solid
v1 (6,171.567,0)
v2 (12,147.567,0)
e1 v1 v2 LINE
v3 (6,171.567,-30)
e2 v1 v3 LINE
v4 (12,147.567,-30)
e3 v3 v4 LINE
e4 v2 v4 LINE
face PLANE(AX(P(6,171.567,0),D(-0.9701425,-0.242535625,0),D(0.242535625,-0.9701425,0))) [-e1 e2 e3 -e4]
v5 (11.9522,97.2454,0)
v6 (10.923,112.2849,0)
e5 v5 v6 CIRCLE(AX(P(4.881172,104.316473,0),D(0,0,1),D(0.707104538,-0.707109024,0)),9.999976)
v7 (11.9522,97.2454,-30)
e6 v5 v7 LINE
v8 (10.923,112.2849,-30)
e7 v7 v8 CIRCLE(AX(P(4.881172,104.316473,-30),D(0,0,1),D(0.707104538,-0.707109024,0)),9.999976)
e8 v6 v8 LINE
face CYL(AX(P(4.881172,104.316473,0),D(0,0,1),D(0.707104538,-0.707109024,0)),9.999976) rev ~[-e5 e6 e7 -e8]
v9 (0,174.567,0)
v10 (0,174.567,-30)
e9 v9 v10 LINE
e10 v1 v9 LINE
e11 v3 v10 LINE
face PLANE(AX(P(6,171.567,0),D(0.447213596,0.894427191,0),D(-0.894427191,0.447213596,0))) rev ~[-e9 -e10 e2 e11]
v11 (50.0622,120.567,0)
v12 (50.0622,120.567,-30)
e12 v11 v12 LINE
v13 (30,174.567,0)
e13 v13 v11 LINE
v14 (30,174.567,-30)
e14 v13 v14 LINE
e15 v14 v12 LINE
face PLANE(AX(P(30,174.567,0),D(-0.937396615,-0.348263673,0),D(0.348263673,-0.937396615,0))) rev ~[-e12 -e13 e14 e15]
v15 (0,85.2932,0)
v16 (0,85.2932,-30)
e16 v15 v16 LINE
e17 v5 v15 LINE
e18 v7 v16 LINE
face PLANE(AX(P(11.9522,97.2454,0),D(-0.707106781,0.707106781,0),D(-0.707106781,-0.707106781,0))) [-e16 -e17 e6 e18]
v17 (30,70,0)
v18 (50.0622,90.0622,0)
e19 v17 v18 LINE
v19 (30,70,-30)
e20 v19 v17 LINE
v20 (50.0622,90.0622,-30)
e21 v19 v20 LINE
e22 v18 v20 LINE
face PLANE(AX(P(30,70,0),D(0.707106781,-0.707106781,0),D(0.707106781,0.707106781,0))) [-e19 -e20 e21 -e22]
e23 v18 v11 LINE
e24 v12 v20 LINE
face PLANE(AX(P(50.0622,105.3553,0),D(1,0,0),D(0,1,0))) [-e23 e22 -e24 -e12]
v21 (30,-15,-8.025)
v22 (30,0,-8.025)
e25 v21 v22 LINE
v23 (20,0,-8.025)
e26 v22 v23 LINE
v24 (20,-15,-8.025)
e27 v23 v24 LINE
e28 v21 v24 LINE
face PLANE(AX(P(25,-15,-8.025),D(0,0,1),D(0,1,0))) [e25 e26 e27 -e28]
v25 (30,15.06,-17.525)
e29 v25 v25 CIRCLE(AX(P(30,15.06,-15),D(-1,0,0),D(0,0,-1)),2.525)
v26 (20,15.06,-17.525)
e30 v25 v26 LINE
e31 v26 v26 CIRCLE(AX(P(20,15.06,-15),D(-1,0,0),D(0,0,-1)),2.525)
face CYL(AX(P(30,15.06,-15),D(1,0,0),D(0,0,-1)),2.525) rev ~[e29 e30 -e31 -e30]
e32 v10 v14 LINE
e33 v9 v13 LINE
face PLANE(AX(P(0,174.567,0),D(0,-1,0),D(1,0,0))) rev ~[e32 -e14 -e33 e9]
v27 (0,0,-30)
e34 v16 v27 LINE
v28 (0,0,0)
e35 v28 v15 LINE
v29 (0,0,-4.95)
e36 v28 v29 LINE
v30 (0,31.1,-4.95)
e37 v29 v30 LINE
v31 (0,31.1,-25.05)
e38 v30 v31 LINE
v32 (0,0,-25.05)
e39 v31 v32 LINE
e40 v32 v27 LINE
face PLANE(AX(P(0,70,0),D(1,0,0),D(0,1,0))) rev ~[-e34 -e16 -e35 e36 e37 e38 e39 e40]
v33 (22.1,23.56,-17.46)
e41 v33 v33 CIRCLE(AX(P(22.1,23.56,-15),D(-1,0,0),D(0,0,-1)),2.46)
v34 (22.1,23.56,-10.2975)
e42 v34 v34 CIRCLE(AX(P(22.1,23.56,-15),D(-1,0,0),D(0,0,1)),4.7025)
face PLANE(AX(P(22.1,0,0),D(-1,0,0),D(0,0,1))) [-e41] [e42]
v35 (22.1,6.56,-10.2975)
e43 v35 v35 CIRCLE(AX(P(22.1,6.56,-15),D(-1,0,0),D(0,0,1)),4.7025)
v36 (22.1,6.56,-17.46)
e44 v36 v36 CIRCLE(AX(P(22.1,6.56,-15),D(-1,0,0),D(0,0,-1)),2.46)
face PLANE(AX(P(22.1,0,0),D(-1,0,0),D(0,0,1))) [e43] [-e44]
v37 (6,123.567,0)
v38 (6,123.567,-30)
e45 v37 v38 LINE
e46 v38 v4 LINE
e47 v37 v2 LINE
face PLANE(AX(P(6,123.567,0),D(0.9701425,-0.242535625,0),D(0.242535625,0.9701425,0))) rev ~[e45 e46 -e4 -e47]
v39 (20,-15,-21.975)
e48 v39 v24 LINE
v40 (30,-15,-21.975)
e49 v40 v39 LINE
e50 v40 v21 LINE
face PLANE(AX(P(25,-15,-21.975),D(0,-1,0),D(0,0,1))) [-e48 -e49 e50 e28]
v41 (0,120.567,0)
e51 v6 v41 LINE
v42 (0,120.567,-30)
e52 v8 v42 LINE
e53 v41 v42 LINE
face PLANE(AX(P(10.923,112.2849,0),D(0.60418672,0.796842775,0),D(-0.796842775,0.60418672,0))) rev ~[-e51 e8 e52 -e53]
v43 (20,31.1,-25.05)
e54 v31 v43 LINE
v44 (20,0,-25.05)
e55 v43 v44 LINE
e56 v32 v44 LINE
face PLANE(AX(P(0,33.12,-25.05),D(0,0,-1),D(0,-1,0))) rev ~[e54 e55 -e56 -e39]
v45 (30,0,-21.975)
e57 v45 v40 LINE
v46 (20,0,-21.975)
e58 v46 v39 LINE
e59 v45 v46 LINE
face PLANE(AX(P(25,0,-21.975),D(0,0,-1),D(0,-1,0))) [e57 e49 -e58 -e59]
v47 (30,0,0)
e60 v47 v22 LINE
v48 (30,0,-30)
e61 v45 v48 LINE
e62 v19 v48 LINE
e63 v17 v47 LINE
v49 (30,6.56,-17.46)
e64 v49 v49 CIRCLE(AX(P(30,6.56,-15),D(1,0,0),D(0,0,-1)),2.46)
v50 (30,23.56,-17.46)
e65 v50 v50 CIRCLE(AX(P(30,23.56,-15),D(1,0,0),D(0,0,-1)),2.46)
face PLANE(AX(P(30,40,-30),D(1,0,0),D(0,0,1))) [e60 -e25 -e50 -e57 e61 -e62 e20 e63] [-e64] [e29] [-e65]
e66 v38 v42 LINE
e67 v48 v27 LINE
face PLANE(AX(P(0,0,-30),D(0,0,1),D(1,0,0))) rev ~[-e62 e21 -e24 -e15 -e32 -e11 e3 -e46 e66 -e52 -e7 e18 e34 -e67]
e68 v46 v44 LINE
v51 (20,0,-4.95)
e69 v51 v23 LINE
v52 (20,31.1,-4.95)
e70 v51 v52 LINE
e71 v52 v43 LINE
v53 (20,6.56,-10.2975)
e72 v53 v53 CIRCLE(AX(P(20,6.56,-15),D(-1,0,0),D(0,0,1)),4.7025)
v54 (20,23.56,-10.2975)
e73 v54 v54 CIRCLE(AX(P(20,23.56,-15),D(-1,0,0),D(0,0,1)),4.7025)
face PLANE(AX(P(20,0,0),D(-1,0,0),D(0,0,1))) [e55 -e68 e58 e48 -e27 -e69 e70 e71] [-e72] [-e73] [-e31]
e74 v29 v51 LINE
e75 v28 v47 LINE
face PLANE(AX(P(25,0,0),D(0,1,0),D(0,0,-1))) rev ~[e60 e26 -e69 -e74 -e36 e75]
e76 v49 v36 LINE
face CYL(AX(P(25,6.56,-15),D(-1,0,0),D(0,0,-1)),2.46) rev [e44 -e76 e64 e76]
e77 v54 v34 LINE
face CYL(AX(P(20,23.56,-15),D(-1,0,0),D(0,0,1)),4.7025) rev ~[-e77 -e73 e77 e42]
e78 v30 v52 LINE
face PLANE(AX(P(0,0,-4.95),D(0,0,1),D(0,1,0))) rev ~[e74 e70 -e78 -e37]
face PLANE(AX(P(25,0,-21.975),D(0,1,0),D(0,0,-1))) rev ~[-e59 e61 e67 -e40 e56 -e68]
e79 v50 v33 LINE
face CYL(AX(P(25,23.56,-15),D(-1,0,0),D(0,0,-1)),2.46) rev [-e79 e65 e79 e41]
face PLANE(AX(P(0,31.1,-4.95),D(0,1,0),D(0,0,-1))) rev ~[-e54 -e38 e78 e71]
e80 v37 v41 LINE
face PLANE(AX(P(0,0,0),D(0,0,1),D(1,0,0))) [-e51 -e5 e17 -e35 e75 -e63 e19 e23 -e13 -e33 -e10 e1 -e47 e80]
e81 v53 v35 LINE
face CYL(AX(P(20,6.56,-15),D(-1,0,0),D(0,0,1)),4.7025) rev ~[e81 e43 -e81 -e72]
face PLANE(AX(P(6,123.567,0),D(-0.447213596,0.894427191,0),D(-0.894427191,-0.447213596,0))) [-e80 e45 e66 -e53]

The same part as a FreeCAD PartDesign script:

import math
import FreeCAD as App
import Part
import Sketcher

V = App.Vector
Q = App.Units.Quantity


def add_polygon(sketch, points):
    """Adds a closed chain of lines whose ends are joined by coincident constraints."""
    first, n = sketch.GeometryCount, len(points)
    for a, b in zip(points, points[1:] + points[:1]):
        sketch.addGeometry(Part.LineSegment(App.Vector(*a, 0), App.Vector(*b, 0)), False)
    for i in range(n):
        sketch.addConstraint(Sketcher.Constraint("Coincident", first + i, 2, first + (i + 1) % n, 1))

doc = App.newDocument("Part")
params = doc.addObject("Spreadsheet::Sheet", "Params")
for row, (alias, value) in enumerate([
    ("sketch1_width", "25 mm"),
    ("sketch1_height", "40 mm"),
    ("pad1_length", "30 mm"),
    ("sketch2_diameter", "4.92 mm"),
    ("pocket1_length", "30 mm"),
    ("sketch3_height", "20.1 mm"),
    ("sketch3_width", "33.12 mm"),
    ("pocket2_length", "20 mm"),
    ("sketch4_height", "13.95 mm"),
    ("sketch4_width", "5 mm"),
    ("pad2_length", "15 mm"),
    ("sketch5_diameter", "4.92 mm"),
    ("pocket3_length", "2.1 mm"),
    ("sketch6_diameter", "4.92 mm"),
    ("pocket4_length", "10 mm"),
    ("sketch7_diameter", "4.92 mm"),
    ("pocket5_length", "2.1 mm"),
    ("sketch8_diameter", "4.92 mm"),
    ("sketch8_width", "40 mm"),
    ("sketch8_width2", "15 mm"),
    ("sketch8_height", "30 mm"),
    ("sketch8_height2", "13.95 mm"),
    ("pad3_length", "5 mm"),
    ("sketch9_width", "30 mm"),
    ("pad4_length", "30 mm"),
    ("sketch10_diameter", "5.05 mm"),
    ("pocket6_length", "30 mm"),
    ("sketch11_width", "2.02 mm"),
    ("sketch11_height", "20.1 mm"),
    ("pad5_length", "20 mm"),
    ("sketch12_radius", "10 mm"),
    ("sketch12_width", "30 mm"),
    ("pad6_length", "30 mm"),
], start=1):
    params.set(f"A{row}", alias)
    params.set(f"B{row}", "=" + value)
    params.setAlias(f"B{row}", alias)

body = doc.addObject("PartDesign::Body", "Body")

# Sketch on XY plane
sketch1 = doc.addObject("Sketcher::SketchObject", "Sketch")
body.addObject(sketch1)
sketch1.AttachmentSupport = (doc.XY_Plane, [""])
sketch1.MapMode = "FlatFace"
add_polygon(sketch1, [(0, 40), (0, 0), (25, 0), (25, 40)])  # lines 0-3
sketch1.addConstraint(Sketcher.Constraint("Vertical", 0))
sketch1.addConstraint(Sketcher.Constraint("Horizontal", 1))
sketch1.addConstraint(Sketcher.Constraint("Vertical", 2))
sketch1.addConstraint(Sketcher.Constraint("Horizontal", 3))
sketch1.addConstraint(Sketcher.Constraint("Coincident", 0, 2, -1, 1))
sketch1.addConstraint(Sketcher.Constraint("DistanceX", 1, 1, 1, 2, 25.0))
sketch1.addConstraint(Sketcher.Constraint("DistanceY", 0, 2, 0, 1, 40.0))
sketch1.setExpression("Constraints[9]", "Params.sketch1_width")
sketch1.setExpression("Constraints[10]", "Params.sketch1_height")
pad1 = doc.addObject("PartDesign::Pad", "Pad")
body.addObject(pad1)
pad1.Profile = sketch1
pad1.setExpression("Length", "Params.pad1_length")
pad1.Reversed = True

# Sketch on YZ plane
sketch2 = doc.addObject("Sketcher::SketchObject", "Sketch001")
body.addObject(sketch2)
sketch2.AttachmentSupport = (doc.YZ_Plane, [""])
sketch2.MapMode = "FlatFace"
sketch2.AttachmentOffset = App.Placement(V(0, 0, 25), App.Rotation())
sketch2.addGeometry(Part.Circle(V(6.6, -15, 0), V(0, 0, 1), 2.5), False)
sketch2.addConstraint(Sketcher.Constraint("Diameter", 0, 4.92))
sketch2.addConstraint(Sketcher.Constraint("DistanceY", 0, 3, -1, 1, 15.0))
sketch2.addConstraint(Sketcher.Constraint("DistanceX", -1, 1, 0, 3, 6.56))
sketch2.setExpression("Constraints[0]", "Params.sketch2_diameter")
pocket1 = doc.addObject("PartDesign::Pocket", "Pocket")
body.addObject(pocket1)
pocket1.Profile = sketch2
pocket1.setExpression("Length", "Params.pocket1_length")

# Sketch on YZ plane
sketch3 = doc.addObject("Sketcher::SketchObject", "Sketch002")
body.addObject(sketch3)
sketch3.AttachmentSupport = (doc.YZ_Plane, [""])
sketch3.MapMode = "FlatFace"
add_polygon(sketch3, [(0, -25), (0, -5), (33, -5), (33, -25)])  # lines 0-3
sketch3.addConstraint(Sketcher.Constraint("Vertical", 0))
sketch3.addConstraint(Sketcher.Constraint("Horizontal", 1))
sketch3.addConstraint(Sketcher.Constraint("Vertical", 2))
sketch3.addConstraint(Sketcher.Constraint("Horizontal", 3))
sketch3.addConstraint(Sketcher.Constraint("PointOnObject", 0, 2, -2))
sketch3.addConstraint(Sketcher.Constraint("DistanceY", 0, 1, 0, 2, 20.1))
sketch3.addConstraint(Sketcher.Constraint("DistanceX", 1, 1, 1, 2, 33.12))
sketch3.addConstraint(Sketcher.Constraint("DistanceY", 0, 2, -1, 1, 4.95))
sketch3.setExpression("Constraints[9]", "Params.sketch3_height")
sketch3.setExpression("Constraints[10]", "Params.sketch3_width")
pocket2 = doc.addObject("PartDesign::Pocket", "Pocket001")
body.addObject(pocket2)
pocket2.Profile = sketch3
pocket2.setExpression("Length", "Params.pocket2_length")
pocket2.Reversed = True

# Sketch on XZ plane
sketch4 = doc.addObject("Sketcher::SketchObject", "Sketch003")
body.addObject(sketch4)
sketch4.AttachmentSupport = (doc.XZ_Plane, [""])
sketch4.MapMode = "FlatFace"
add_polygon(sketch4, [(25, -8), (20, -8), (20, -22), (25, -22)])  # lines 0-3
sketch4.addConstraint(Sketcher.Constraint("Horizontal", 0))
sketch4.addConstraint(Sketcher.Constraint("Vertical", 1))
sketch4.addConstraint(Sketcher.Constraint("Horizontal", 2))
sketch4.addConstraint(Sketcher.Constraint("Vertical", 3))
sketch4.addConstraint(Sketcher.Constraint("DistanceY", 1, 2, 1, 1, 13.95))
sketch4.addConstraint(Sketcher.Constraint("DistanceX", 0, 2, 0, 1, 5.0))
sketch4.addConstraint(Sketcher.Constraint("DistanceX", -1, 1, 0, 2, 20.0))
sketch4.addConstraint(Sketcher.Constraint("DistanceY", 0, 2, -1, 1, 8.025))
sketch4.setExpression("Constraints[8]", "Params.sketch4_height")
sketch4.setExpression("Constraints[9]", "Params.sketch4_width")
pad2 = doc.addObject("PartDesign::Pad", "Pad001")
body.addObject(pad2)
pad2.Profile = sketch4
pad2.setExpression("Length", "Params.pad2_length")

# Sketch on YZ plane
sketch5 = doc.addObject("Sketcher::SketchObject", "Sketch004")
body.addObject(sketch5)
sketch5.AttachmentSupport = (doc.YZ_Plane, [""])
sketch5.MapMode = "FlatFace"
sketch5.AttachmentOffset = App.Placement(V(0, 0, 20), App.Rotation())
sketch5.addGeometry(Part.Circle(V(6.6, -15, 0), V(0, 0, 1), 4.7), False)
sketch5.addGeometry(Part.Circle(V(6.6, -15, 0), V(0, 0, 1), 2.5), False)
sketch5.addConstraint(Sketcher.Constraint("Coincident", 1, 3, 0, 3))
sketch5.addConstraint(Sketcher.Constraint("Diameter", 0, 9.405))
sketch5.addConstraint(Sketcher.Constraint("Diameter", 1, 4.92))
sketch5.addConstraint(Sketcher.Constraint("DistanceY", 0, 3, -1, 1, 15.0))
sketch5.addConstraint(Sketcher.Constraint("DistanceX", -1, 1, 0, 3, 6.56))
sketch5.setExpression("Constraints[2]", "Params.sketch5_diameter")
pocket3 = doc.addObject("PartDesign::Pocket", "Pocket002")
body.addObject(pocket3)
pocket3.Profile = sketch5
pocket3.setExpression("Length", "Params.pocket3_length")
pocket3.Reversed = True

# Sketch on YZ plane
sketch6 = doc.addObject("Sketcher::SketchObject", "Sketch005")
body.addObject(sketch6)
sketch6.AttachmentSupport = (doc.YZ_Plane, [""])
sketch6.MapMode = "FlatFace"
sketch6.AttachmentOffset = App.Placement(V(0, 0, 25), App.Rotation())
sketch6.addGeometry(Part.Circle(V(23.6, -15, 0), V(0, 0, 1), 2.5), False)
sketch6.addConstraint(Sketcher.Constraint("Diameter", 0, 4.92))
sketch6.addConstraint(Sketcher.Constraint("DistanceY", 0, 3, -1, 1, 15.0))
sketch6.addConstraint(Sketcher.Constraint("DistanceX", -1, 1, 0, 3, 23.56))
sketch6.setExpression("Constraints[0]", "Params.sketch6_diameter")
pocket4 = doc.addObject("PartDesign::Pocket", "Pocket003")
body.addObject(pocket4)
pocket4.Profile = sketch6
pocket4.setExpression("Length", "Params.pocket4_length")

# Sketch on YZ plane
sketch7 = doc.addObject("Sketcher::SketchObject", "Sketch006")
body.addObject(sketch7)
sketch7.AttachmentSupport = (doc.YZ_Plane, [""])
sketch7.MapMode = "FlatFace"
sketch7.AttachmentOffset = App.Placement(V(0, 0, 20), App.Rotation())
sketch7.addGeometry(Part.Circle(V(23.6, -15, 0), V(0, 0, 1), 4.7), False)
sketch7.addGeometry(Part.Circle(V(23.6, -15, 0), V(0, 0, 1), 2.5), False)
sketch7.addConstraint(Sketcher.Constraint("Coincident", 1, 3, 0, 3))
sketch7.addConstraint(Sketcher.Constraint("Diameter", 0, 9.405))
sketch7.addConstraint(Sketcher.Constraint("Diameter", 1, 4.92))
sketch7.addConstraint(Sketcher.Constraint("DistanceY", 0, 3, -1, 1, 15.0))
sketch7.addConstraint(Sketcher.Constraint("DistanceX", -1, 1, 0, 3, 23.56))
sketch7.setExpression("Constraints[2]", "Params.sketch7_diameter")
pocket5 = doc.addObject("PartDesign::Pocket", "Pocket004")
body.addObject(pocket5)
pocket5.Profile = sketch7
pocket5.setExpression("Length", "Params.pocket5_length")
pocket5.Reversed = True

# Sketch on YZ plane
sketch8 = doc.addObject("Sketcher::SketchObject", "Sketch007")
body.addObject(sketch8)
sketch8.AttachmentSupport = (doc.YZ_Plane, [""])
sketch8.MapMode = "FlatFace"
sketch8.AttachmentOffset = App.Placement(V(0, 0, 25), App.Rotation())
add_polygon(sketch8, [(0, -30), (40, -30), (40, 0), (0, 0), (0, -8), (-15, -8), (-15, -22), (0, -22)])  # lines 0-7
sketch8.addGeometry(Part.Circle(V(6.6, -15, 0), V(0, 0, 1), 2.5), False)  # 8
sketch8.addGeometry(Part.Circle(V(23.6, -15, 0), V(0, 0, 1), 2.5), False)  # 9
sketch8.addConstraint(Sketcher.Constraint("Horizontal", 0))
sketch8.addConstraint(Sketcher.Constraint("Vertical", 1))
sketch8.addConstraint(Sketcher.Constraint("Horizontal", 2))
sketch8.addConstraint(Sketcher.Constraint("Vertical", 3))
sketch8.addConstraint(Sketcher.Constraint("Horizontal", 4))
sketch8.addConstraint(Sketcher.Constraint("Vertical", 5))
sketch8.addConstraint(Sketcher.Constraint("Horizontal", 6))
sketch8.addConstraint(Sketcher.Constraint("Vertical", 7))
sketch8.addConstraint(Sketcher.Constraint("Coincident", 2, 2, -1, 1))
sketch8.addConstraint(Sketcher.Constraint("Equal", 8, 9))
sketch8.addConstraint(Sketcher.Constraint("PointOnObject", 6, 2, -2))
sketch8.addConstraint(Sketcher.Constraint("Horizontal", 8, 3, 9, 3))
sketch8.addConstraint(Sketcher.Constraint("Equal", 3, 7))
sketch8.addConstraint(Sketcher.Constraint("Diameter", 8, 4.92))
sketch8.addConstraint(Sketcher.Constraint("DistanceX", 0, 1, 0, 2, 40.0))
sketch8.addConstraint(Sketcher.Constraint("DistanceX", 4, 2, 4, 1, 15.0))
sketch8.addConstraint(Sketcher.Constraint("DistanceY", 1, 1, 1, 2, 30.0))
sketch8.addConstraint(Sketcher.Constraint("DistanceY", 8, 3, -1, 1, 15.0))
sketch8.addConstraint(Sketcher.Constraint("DistanceX", 8, 3, 9, 3, 17.0))
sketch8.addConstraint(Sketcher.Constraint("DistanceY", 5, 2, 5, 1, 13.95))
sketch8.addConstraint(Sketcher.Constraint("DistanceX", -1, 1, 8, 3, 6.56))
sketch8.setExpression("Constraints[21]", "Params.sketch8_diameter")
sketch8.setExpression("Constraints[22]", "Params.sketch8_width")
sketch8.setExpression("Constraints[23]", "Params.sketch8_width2")
sketch8.setExpression("Constraints[24]", "Params.sketch8_height")
sketch8.setExpression("Constraints[27]", "Params.sketch8_height2")
pad3 = doc.addObject("PartDesign::Pad", "Pad002")
body.addObject(pad3)
pad3.Profile = sketch8
pad3.setExpression("Length", "Params.pad3_length")

# Sketch on XZ plane
sketch9 = doc.addObject("Sketcher::SketchObject", "Sketch008")
body.addObject(sketch9)
sketch9.AttachmentSupport = (doc.XZ_Plane, [""])
sketch9.MapMode = "FlatFace"
sketch9.AttachmentOffset = App.Placement(V(0, 0, -40), App.Rotation())
add_polygon(sketch9, [(30, -30), (0, -30), (0, 0), (30, 0)])  # lines 0-3
sketch9.addConstraint(Sketcher.Constraint("Horizontal", 0))
sketch9.addConstraint(Sketcher.Constraint("Vertical", 1))
sketch9.addConstraint(Sketcher.Constraint("Horizontal", 2))
sketch9.addConstraint(Sketcher.Constraint("Vertical", 3))
sketch9.addConstraint(Sketcher.Constraint("Coincident", 1, 2, -1, 1))
sketch9.addConstraint(Sketcher.Constraint("Equal", 2, 1))
sketch9.addConstraint(Sketcher.Constraint("DistanceX", 0, 2, 0, 1, 30.0))
sketch9.setExpression("Constraints[10]", "Params.sketch9_width")
pad4 = doc.addObject("PartDesign::Pad", "Pad003")
body.addObject(pad4)
pad4.Profile = sketch9
pad4.setExpression("Length", "Params.pad4_length")
pad4.Reversed = True

# Sketch on YZ plane
sketch10 = doc.addObject("Sketcher::SketchObject", "Sketch009")
body.addObject(sketch10)
sketch10.AttachmentSupport = (doc.YZ_Plane, [""])
sketch10.MapMode = "FlatFace"
sketch10.AttachmentOffset = App.Placement(V(0, 0, 30), App.Rotation())
sketch10.addGeometry(Part.Circle(V(15.1, -15, 0), V(0, 0, 1), 2.5), False)
sketch10.addConstraint(Sketcher.Constraint("Diameter", 0, 5.05))
sketch10.addConstraint(Sketcher.Constraint("DistanceY", 0, 3, -1, 1, 15.0))
sketch10.addConstraint(Sketcher.Constraint("DistanceX", -1, 1, 0, 3, 15.06))
sketch10.setExpression("Constraints[0]", "Params.sketch10_diameter")
pocket6 = doc.addObject("PartDesign::Pocket", "Pocket005")
body.addObject(pocket6)
pocket6.Profile = sketch10
pocket6.setExpression("Length", "Params.pocket6_length")

# Sketch on YZ plane
sketch11 = doc.addObject("Sketcher::SketchObject", "Sketch010")
body.addObject(sketch11)
sketch11.AttachmentSupport = (doc.YZ_Plane, [""])
sketch11.MapMode = "FlatFace"
add_polygon(sketch11, [(33.1, -5), (33.1, -25.1), (31.1, -25.1), (31.1, -5)])  # lines 0-3
sketch11.addConstraint(Sketcher.Constraint("Vertical", 0))
sketch11.addConstraint(Sketcher.Constraint("Horizontal", 1))
sketch11.addConstraint(Sketcher.Constraint("Vertical", 2))
sketch11.addConstraint(Sketcher.Constraint("Horizontal", 3))
sketch11.addConstraint(Sketcher.Constraint("DistanceX", 1, 2, 1, 1, 2.02))
sketch11.addConstraint(Sketcher.Constraint("DistanceY", 0, 2, 0, 1, 20.1))
sketch11.addConstraint(Sketcher.Constraint("DistanceX", -1, 1, 1, 2, 31.1))
sketch11.addConstraint(Sketcher.Constraint("DistanceY", 0, 2, -1, 1, 25.05))
sketch11.setExpression("Constraints[8]", "Params.sketch11_width")
sketch11.setExpression("Constraints[9]", "Params.sketch11_height")
pad5 = doc.addObject("PartDesign::Pad", "Pad004")
body.addObject(pad5)
pad5.Profile = sketch11
pad5.setExpression("Length", "Params.pad5_length")

# Sketch on XY plane
sketch12 = doc.addObject("Sketcher::SketchObject", "Sketch011")
body.addObject(sketch12)
sketch12.AttachmentSupport = (doc.XY_Plane, [""])
sketch12.MapMode = "FlatFace"
sketch12.addGeometry(Part.LineSegment(V(0, 85, 0), V(0, 70, 0)), False)
sketch12.addGeometry(Part.LineSegment(V(0, 70, 0), V(30, 70, 0)), False)
sketch12.addGeometry(Part.LineSegment(V(30, 70, 0), V(50, 90, 0)), False)
sketch12.addGeometry(Part.LineSegment(V(50, 90, 0), V(50, 121, 0)), False)
sketch12.addGeometry(Part.LineSegment(V(50, 121, 0), V(30, 175, 0)), False)
sketch12.addGeometry(Part.LineSegment(V(30, 175, 0), V(0, 175, 0)), False)
sketch12.addGeometry(Part.LineSegment(V(0, 175, 0), V(6, 172, 0)), False)
sketch12.addGeometry(Part.LineSegment(V(6, 172, 0), V(12, 148, 0)), False)
sketch12.addGeometry(Part.LineSegment(V(12, 148, 0), V(6, 124, 0)), False)
sketch12.addGeometry(Part.LineSegment(V(6, 124, 0), V(0, 121, 0)), False)
sketch12.addGeometry(Part.LineSegment(V(0, 121, 0), V(11, 112, 0)), False)
sketch12.addGeometry(Part.ArcOfCircle(Part.Circle(V(5, 104, 0), V(0, 0, 1), 10), math.radians(-45), math.radians(53)), False)
sketch12.addGeometry(Part.LineSegment(V(12, 97, 0), V(0, 85, 0)), False)
sketch12.addConstraint(Sketcher.Constraint("Coincident", 0, 2, 1, 1))
sketch12.addConstraint(Sketcher.Constraint("Coincident", 1, 2, 2, 1))
sketch12.addConstraint(Sketcher.Constraint("Coincident", 2, 2, 3, 1))
sketch12.addConstraint(Sketcher.Constraint("Coincident", 3, 2, 4, 1))
sketch12.addConstraint(Sketcher.Constraint("Coincident", 4, 2, 5, 1))
sketch12.addConstraint(Sketcher.Constraint("Coincident", 5, 2, 6, 1))
sketch12.addConstraint(Sketcher.Constraint("Coincident", 6, 2, 7, 1))
sketch12.addConstraint(Sketcher.Constraint("Coincident", 7, 2, 8, 1))
sketch12.addConstraint(Sketcher.Constraint("Coincident", 8, 2, 9, 1))
sketch12.addConstraint(Sketcher.Constraint("Coincident", 9, 2, 10, 1))
sketch12.addConstraint(Sketcher.Constraint("Tangent", 10, 2, 11, 2))
sketch12.addConstraint(Sketcher.Constraint("Tangent", 11, 1, 12, 1))
sketch12.addConstraint(Sketcher.Constraint("Coincident", 12, 2, 0, 1))
sketch12.addConstraint(Sketcher.Constraint("Vertical", 0))
sketch12.addConstraint(Sketcher.Constraint("Horizontal", 1))
sketch12.addConstraint(Sketcher.Constraint("Vertical", 3))
sketch12.addConstraint(Sketcher.Constraint("Horizontal", 5))
sketch12.addConstraint(Sketcher.Constraint("PointOnObject", 0, 2, -2))
sketch12.addConstraint(Sketcher.Constraint("PointOnObject", 5, 2, -2))
sketch12.addConstraint(Sketcher.Constraint("PointOnObject", 9, 2, -2))
sketch12.addConstraint(Sketcher.Constraint("Parallel", 2, 12))
sketch12.addConstraint(Sketcher.Constraint("Horizontal", 3, 2, 9, 2))
sketch12.addConstraint(Sketcher.Constraint("Vertical", 1, 2, 4, 2))
sketch12.addConstraint(Sketcher.Constraint("Vertical", 6, 2, 8, 2))
sketch12.addConstraint(Sketcher.Constraint("Equal", 7, 8))
sketch12.addConstraint(Sketcher.Constraint("Equal", 6, 9))
sketch12.addConstraint(Sketcher.Constraint("Radius", 11, 10.0))
sketch12.addConstraint(Sketcher.Constraint("Angle", 2, Q("45 deg")))
sketch12.addConstraint(Sketcher.Constraint("DistanceX", 1, 1, 1, 2, 30.0))
sketch12.addConstraint(Sketcher.Constraint("DistanceY", -1, 1, 0, 2, 70.0))
sketch12.addConstraint(Sketcher.Constraint("DistanceX", -1, 1, 6, 2, 6.0))
sketch12.addConstraint(Sketcher.Constraint("DistanceX", -1, 1, 7, 2, 12.0))
sketch12.addConstraint(Sketcher.Constraint("DistanceY", 3, 2, 4, 2, 54.0))
sketch12.addConstraint(Sketcher.Constraint("DistanceY", 6, 2, 5, 2, 3.0))
sketch12.addConstraint(Sketcher.Constraint("Angle", 4, Q("110.3812 deg")))
sketch12.addConstraint(Sketcher.Constraint("Angle", 10, Q("-37.1703 deg")))
sketch12.addConstraint(Sketcher.Constraint("Distance", 12, 16.903))
sketch12.addConstraint(Sketcher.Constraint("DistanceY", 0, 2, 0, 1, 15.2932))
sketch12.setExpression("Constraints[26]", "Params.sketch12_radius")
sketch12.setExpression("Constraints[28]", "Params.sketch12_width")
pad6 = doc.addObject("PartDesign::Pad", "Pad005")
body.addObject(pad6)
pad6.Profile = sketch12
pad6.setExpression("Length", "Params.pad6_length")
pad6.Reversed = True

doc.recompute()
